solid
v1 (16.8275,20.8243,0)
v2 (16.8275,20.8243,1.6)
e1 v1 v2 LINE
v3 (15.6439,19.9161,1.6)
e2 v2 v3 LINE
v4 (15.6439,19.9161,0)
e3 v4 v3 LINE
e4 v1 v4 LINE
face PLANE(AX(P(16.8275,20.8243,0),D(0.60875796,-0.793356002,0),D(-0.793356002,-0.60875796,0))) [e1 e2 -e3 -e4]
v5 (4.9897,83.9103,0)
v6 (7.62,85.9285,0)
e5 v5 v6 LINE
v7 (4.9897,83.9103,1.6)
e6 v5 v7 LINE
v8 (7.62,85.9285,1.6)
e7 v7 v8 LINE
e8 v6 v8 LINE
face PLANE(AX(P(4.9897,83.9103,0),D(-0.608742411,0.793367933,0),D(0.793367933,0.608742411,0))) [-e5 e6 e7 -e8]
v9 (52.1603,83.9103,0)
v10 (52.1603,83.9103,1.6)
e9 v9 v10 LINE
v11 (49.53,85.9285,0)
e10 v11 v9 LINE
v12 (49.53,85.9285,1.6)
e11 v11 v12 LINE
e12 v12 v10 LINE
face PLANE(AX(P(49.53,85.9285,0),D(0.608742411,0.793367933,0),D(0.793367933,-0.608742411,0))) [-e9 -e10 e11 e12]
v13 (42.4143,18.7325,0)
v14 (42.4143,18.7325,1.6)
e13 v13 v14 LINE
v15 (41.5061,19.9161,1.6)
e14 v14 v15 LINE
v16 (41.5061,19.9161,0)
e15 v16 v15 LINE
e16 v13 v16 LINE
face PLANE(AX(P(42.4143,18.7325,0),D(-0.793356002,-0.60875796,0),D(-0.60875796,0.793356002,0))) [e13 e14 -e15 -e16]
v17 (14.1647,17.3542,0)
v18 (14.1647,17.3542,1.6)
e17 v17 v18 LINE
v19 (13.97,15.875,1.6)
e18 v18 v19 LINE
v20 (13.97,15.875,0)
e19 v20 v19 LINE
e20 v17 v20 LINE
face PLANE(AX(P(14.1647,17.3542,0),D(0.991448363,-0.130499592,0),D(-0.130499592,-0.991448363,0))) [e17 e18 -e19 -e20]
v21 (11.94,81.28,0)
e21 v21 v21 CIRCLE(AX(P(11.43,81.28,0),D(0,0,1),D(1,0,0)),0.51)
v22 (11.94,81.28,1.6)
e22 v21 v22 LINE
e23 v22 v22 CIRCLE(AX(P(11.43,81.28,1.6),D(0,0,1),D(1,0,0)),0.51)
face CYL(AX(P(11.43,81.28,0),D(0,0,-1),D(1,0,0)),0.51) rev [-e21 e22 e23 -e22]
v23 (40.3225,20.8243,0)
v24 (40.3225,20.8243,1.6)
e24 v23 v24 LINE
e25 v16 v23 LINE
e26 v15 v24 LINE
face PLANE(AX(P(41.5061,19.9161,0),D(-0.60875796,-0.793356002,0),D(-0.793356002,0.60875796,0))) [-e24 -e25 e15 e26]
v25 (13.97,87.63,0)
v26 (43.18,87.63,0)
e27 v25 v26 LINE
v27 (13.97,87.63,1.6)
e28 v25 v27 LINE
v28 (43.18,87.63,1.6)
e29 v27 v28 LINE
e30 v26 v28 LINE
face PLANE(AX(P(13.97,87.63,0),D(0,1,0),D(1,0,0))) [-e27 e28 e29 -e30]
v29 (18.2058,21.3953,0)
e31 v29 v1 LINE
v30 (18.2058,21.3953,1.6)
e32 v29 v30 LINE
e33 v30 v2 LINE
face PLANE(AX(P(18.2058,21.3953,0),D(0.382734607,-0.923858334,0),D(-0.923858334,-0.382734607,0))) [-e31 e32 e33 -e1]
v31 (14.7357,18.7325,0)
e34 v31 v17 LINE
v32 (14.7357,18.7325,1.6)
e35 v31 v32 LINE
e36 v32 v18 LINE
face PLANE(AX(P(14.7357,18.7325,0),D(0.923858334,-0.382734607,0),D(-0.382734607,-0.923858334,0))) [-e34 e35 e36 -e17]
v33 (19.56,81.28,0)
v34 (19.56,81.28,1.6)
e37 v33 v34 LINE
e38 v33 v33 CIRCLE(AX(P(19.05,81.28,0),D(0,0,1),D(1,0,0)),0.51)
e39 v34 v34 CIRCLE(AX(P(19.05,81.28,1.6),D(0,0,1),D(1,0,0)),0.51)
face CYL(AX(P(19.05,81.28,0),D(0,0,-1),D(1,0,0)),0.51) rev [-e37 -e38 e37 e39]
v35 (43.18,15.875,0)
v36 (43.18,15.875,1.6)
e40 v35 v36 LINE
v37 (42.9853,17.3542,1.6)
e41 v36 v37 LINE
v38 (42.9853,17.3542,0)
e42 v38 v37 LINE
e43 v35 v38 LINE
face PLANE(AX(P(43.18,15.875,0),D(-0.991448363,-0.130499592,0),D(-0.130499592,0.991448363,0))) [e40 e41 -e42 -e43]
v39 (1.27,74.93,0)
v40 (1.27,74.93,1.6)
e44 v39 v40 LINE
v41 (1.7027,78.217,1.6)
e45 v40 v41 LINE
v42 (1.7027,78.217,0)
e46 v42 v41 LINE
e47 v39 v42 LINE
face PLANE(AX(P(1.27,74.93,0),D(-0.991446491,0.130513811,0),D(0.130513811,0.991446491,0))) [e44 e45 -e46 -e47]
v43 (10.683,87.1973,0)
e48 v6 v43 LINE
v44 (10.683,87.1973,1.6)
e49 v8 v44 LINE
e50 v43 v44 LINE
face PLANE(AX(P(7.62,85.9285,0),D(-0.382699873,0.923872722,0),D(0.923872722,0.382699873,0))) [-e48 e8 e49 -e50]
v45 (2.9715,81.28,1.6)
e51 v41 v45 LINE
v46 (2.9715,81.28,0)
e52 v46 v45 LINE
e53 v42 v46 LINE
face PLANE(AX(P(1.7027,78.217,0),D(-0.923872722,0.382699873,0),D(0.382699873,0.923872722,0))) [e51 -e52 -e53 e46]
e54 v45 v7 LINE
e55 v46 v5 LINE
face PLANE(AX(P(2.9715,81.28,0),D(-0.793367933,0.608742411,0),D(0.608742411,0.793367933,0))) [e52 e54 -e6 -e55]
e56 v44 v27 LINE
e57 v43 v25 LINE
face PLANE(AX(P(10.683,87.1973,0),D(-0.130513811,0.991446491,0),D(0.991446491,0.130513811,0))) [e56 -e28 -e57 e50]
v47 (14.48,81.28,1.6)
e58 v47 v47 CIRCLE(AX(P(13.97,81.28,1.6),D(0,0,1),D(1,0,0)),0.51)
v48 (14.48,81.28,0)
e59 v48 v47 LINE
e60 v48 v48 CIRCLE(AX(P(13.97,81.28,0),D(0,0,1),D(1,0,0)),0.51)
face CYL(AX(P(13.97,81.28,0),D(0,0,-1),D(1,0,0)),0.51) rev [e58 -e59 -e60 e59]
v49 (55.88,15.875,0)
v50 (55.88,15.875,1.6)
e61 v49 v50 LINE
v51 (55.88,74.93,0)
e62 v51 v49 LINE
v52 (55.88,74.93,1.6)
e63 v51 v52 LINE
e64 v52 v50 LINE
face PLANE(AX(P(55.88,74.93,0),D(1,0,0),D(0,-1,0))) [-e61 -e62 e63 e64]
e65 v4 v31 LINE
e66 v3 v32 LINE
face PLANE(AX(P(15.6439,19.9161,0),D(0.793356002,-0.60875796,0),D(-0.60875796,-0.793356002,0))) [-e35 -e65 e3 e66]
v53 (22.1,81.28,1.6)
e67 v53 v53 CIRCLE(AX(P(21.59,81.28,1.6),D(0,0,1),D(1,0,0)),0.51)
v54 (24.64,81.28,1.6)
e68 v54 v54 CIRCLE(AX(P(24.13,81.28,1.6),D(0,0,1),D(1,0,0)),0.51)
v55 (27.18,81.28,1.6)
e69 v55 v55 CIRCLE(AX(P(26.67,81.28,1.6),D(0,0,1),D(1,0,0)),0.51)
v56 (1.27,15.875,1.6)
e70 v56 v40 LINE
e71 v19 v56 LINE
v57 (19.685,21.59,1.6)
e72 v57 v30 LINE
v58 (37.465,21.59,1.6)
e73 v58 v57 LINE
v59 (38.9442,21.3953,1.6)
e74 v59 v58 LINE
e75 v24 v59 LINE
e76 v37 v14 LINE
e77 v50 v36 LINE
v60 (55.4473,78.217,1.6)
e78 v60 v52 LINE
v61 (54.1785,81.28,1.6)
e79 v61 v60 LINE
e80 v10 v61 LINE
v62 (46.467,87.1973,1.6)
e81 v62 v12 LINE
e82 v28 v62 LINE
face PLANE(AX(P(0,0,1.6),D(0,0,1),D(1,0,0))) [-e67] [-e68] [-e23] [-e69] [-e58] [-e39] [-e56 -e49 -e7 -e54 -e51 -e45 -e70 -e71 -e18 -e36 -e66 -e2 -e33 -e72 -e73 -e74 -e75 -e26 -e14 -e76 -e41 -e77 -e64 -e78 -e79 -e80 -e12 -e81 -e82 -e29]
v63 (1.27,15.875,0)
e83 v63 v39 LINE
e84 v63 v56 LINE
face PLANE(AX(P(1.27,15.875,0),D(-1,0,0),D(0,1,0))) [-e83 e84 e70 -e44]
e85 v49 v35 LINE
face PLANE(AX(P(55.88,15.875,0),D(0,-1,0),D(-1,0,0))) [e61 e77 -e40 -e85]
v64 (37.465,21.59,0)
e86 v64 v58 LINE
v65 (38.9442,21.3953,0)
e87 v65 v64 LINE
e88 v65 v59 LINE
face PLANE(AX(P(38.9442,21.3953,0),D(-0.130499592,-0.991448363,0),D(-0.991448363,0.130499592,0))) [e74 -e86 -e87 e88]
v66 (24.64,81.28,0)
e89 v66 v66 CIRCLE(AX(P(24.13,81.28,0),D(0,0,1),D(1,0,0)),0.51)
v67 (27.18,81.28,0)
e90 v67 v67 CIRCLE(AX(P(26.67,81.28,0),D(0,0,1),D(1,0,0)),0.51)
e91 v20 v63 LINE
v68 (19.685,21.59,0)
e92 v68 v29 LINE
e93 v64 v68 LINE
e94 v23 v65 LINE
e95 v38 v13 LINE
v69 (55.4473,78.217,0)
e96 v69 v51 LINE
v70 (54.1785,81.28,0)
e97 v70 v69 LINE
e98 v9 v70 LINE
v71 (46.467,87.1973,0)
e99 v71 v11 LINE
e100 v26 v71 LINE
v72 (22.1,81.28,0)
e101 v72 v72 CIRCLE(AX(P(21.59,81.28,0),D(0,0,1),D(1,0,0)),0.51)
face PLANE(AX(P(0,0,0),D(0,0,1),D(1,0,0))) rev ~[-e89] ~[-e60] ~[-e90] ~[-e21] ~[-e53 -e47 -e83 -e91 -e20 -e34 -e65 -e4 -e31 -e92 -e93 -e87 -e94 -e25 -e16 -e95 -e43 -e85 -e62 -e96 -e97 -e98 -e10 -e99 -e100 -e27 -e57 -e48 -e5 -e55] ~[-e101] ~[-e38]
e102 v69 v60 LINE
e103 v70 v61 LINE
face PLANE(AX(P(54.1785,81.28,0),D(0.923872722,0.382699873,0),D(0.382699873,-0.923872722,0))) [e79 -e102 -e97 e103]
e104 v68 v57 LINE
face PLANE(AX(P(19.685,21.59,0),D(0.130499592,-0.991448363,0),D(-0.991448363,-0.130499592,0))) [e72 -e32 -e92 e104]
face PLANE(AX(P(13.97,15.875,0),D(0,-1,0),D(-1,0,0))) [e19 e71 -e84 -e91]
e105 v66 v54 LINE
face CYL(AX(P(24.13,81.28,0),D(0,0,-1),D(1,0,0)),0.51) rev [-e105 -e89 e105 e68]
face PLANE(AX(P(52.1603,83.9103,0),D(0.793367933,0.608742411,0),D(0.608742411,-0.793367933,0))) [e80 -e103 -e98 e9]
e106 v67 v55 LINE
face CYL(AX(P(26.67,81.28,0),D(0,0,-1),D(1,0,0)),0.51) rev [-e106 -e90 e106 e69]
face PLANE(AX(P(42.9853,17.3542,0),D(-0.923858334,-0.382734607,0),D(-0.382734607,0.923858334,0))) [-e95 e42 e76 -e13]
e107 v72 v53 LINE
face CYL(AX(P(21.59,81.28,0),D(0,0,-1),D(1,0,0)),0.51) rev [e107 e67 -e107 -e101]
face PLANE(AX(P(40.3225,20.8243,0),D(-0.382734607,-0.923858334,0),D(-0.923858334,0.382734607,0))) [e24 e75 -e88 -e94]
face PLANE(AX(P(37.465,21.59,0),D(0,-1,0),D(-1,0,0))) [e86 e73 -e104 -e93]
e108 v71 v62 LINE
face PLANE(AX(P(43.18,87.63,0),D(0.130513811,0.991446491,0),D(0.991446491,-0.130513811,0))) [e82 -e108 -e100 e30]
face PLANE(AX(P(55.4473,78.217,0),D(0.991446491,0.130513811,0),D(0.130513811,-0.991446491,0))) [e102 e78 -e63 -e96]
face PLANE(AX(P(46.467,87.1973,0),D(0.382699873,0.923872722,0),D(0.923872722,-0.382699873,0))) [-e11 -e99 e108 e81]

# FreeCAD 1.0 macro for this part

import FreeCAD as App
import Part
import Sketcher

V = App.Vector
Q = App.Units.Quantity


def add_polygon(sketch, points):
    """Adds a closed chain of lines whose ends are joined by coincident constraints."""
    first, n = sketch.GeometryCount, len(points)
    for a, b in zip(points, points[1:] + points[:1]):
        sketch.addGeometry(Part.LineSegment(App.Vector(*a, 0), App.Vector(*b, 0)), False)
    for i in range(n):
        sketch.addConstraint(Sketcher.Constraint("Coincident", first + i, 2, first + (i + 1) % n, 1))

doc = App.newDocument("Part")
body = doc.addObject("PartDesign::Body", "Body")

# Sketch on XY plane
sketch1 = body.newObject("Sketcher::SketchObject", "Sketch")
sketch1.AttachmentSupport = (doc.getObject("XY_Plane"), [""])
sketch1.MapMode = "FlatFace"
add_polygon(sketch1, [(55.88, 15.875), (55.88, 74.93), (55.4473, 78.217), (54.1785, 81.28), (52.1603, 83.9103), (49.53, 85.9285), (46.467, 87.1973), (43.18, 87.63), (13.97, 87.63), (10.683, 87.1973), (7.62, 85.9285), (4.9897, 83.9103), (2.9715, 81.28), (1.7027, 78.217), (1.27, 74.93), (1.27, 15.875), (13.97, 15.875), (14.1647, 17.3542), (14.7357, 18.7325), (15.6439, 19.9161), (16.8275, 20.8243), (18.2058, 21.3953), (19.685, 21.59), (37.465, 21.59), (38.9442, 21.3953), (40.3225, 20.8243), (41.5061, 19.9161), (42.4143, 18.7325), (42.9853, 17.3542), (43.18, 15.875)])  # lines 0-29
sketch1.addGeometry(Part.Circle(V(11.43, 81.28, 0), V(0, 0, 1), 0.51), False)  # 30
sketch1.addGeometry(Part.Circle(V(13.97, 81.28, 0), V(0, 0, 1), 0.51), False)  # 31
sketch1.addGeometry(Part.Circle(V(19.05, 81.28, 0), V(0, 0, 1), 0.51), False)  # 32
sketch1.addGeometry(Part.Circle(V(21.59, 81.28, 0), V(0, 0, 1), 0.51), False)  # 33
sketch1.addGeometry(Part.Circle(V(24.13, 81.28, 0), V(0, 0, 1), 0.51), False)  # 34
sketch1.addGeometry(Part.Circle(V(26.67, 81.28, 0), V(0, 0, 1), 0.51), False)  # 35
sketch1.addConstraint(Sketcher.Constraint("Vertical", 0))
sketch1.addConstraint(Sketcher.Constraint("Horizontal", 7))
sketch1.addConstraint(Sketcher.Constraint("Vertical", 14))
sketch1.addConstraint(Sketcher.Constraint("Horizontal", 15))
sketch1.addConstraint(Sketcher.Constraint("Horizontal", 22))
sketch1.addConstraint(Sketcher.Constraint("Horizontal", 29))
sketch1.addConstraint(Sketcher.Constraint("Equal", 30, 31))
sketch1.addConstraint(Sketcher.Constraint("Equal", 31, 32))
sketch1.addConstraint(Sketcher.Constraint("Equal", 32, 33))
sketch1.addConstraint(Sketcher.Constraint("Equal", 33, 34))
sketch1.addConstraint(Sketcher.Constraint("Equal", 34, 35))
sketch1.addConstraint(Sketcher.Constraint("Perpendicular", 1, 8))
sketch1.addConstraint(Sketcher.Constraint("Perpendicular", 2, 9))
sketch1.addConstraint(Sketcher.Constraint("Perpendicular", 3, 10))
sketch1.addConstraint(Sketcher.Constraint("Perpendicular", 4, 11))
sketch1.addConstraint(Sketcher.Constraint("Perpendicular", 5, 12))
sketch1.addConstraint(Sketcher.Constraint("Perpendicular", 6, 13))
sketch1.addConstraint(Sketcher.Constraint("Parallel", 13, 16))
sketch1.addConstraint(Sketcher.Constraint("Parallel", 12, 17))
sketch1.addConstraint(Sketcher.Constraint("Parallel", 11, 18))
sketch1.addConstraint(Sketcher.Constraint("Parallel", 10, 19))
sketch1.addConstraint(Sketcher.Constraint("Parallel", 9, 20))
sketch1.addConstraint(Sketcher.Constraint("Parallel", 8, 21))
sketch1.addConstraint(Sketcher.Constraint("Perpendicular", 16, 23))
sketch1.addConstraint(Sketcher.Constraint("Perpendicular", 17, 24))
sketch1.addConstraint(Sketcher.Constraint("Perpendicular", 18, 25))
sketch1.addConstraint(Sketcher.Constraint("Perpendicular", 19, 26))
sketch1.addConstraint(Sketcher.Constraint("Perpendicular", 20, 27))
sketch1.addConstraint(Sketcher.Constraint("Perpendicular", 21, 28))
sketch1.addConstraint(Sketcher.Constraint("Horizontal", 30, 3, 31, 3))
sketch1.addConstraint(Sketcher.Constraint("Horizontal", 31, 3, 32, 3))
sketch1.addConstraint(Sketcher.Constraint("Horizontal", 32, 3, 33, 3))
sketch1.addConstraint(Sketcher.Constraint("Horizontal", 33, 3, 34, 3))
sketch1.addConstraint(Sketcher.Constraint("Horizontal", 34, 3, 35, 3))
sketch1.addConstraint(Sketcher.Constraint("Horizontal", 35, 3, 2, 2))
sketch1.addConstraint(Sketcher.Constraint("Horizontal", 5, 2, 8, 2))
sketch1.addConstraint(Sketcher.Constraint("Horizontal", 4, 2, 9, 2))
sketch1.addConstraint(Sketcher.Constraint("Horizontal", 3, 2, 10, 2))
sketch1.addConstraint(Sketcher.Constraint("Horizontal", 2, 2, 11, 2))
sketch1.addConstraint(Sketcher.Constraint("Horizontal", 1, 2, 12, 2))
sketch1.addConstraint(Sketcher.Constraint("Horizontal", 0, 2, 13, 2))
sketch1.addConstraint(Sketcher.Constraint("Horizontal", 20, 2, 23, 2))
sketch1.addConstraint(Sketcher.Constraint("Horizontal", 19, 2, 24, 2))
sketch1.addConstraint(Sketcher.Constraint("Horizontal", 18, 2, 25, 2))
sketch1.addConstraint(Sketcher.Constraint("Horizontal", 17, 2, 26, 2))
sketch1.addConstraint(Sketcher.Constraint("Horizontal", 16, 2, 27, 2))
sketch1.addConstraint(Sketcher.Constraint("Horizontal", 15, 2, 28, 2))
sketch1.addConstraint(Sketcher.Constraint("Vertical", 31, 3, 7, 2))
sketch1.addConstraint(Sketcher.Constraint("Vertical", 7, 2, 15, 2))
sketch1.addConstraint(Sketcher.Constraint("Vertical", 6, 2, 28, 2))
sketch1.addConstraint(Sketcher.Constraint("Equal", 15, 29))
sketch1.addConstraint(Sketcher.Constraint("Equal", 1, 2))
sketch1.addConstraint(Sketcher.Constraint("Equal", 2, 3))
sketch1.addConstraint(Sketcher.Constraint("Equal", 3, 4))
sketch1.addConstraint(Sketcher.Constraint("Equal", 4, 5))
sketch1.addConstraint(Sketcher.Constraint("Equal", 5, 6))
sketch1.addConstraint(Sketcher.Constraint("Equal", 6, 8))
sketch1.addConstraint(Sketcher.Constraint("Equal", 8, 9))
sketch1.addConstraint(Sketcher.Constraint("Equal", 16, 17))
sketch1.addConstraint(Sketcher.Constraint("Equal", 17, 18))
sketch1.addConstraint(Sketcher.Constraint("Equal", 18, 19))
sketch1.addConstraint(Sketcher.Constraint("Equal", 19, 20))
sketch1.addConstraint(Sketcher.Constraint("Equal", 20, 21))
sketch1.addConstraint(Sketcher.Constraint("DistanceX", 15, 1, 15, 2, Q("0.5 in")))
sketch1.addConstraint(Sketcher.Constraint("DistanceX", 22, 1, 22, 2, Q("0.7 in")))
sketch1.addConstraint(Sketcher.Constraint("DistanceX", 7, 2, 7, 1, Q("1.15 in")))
sketch1.addConstraint(Sketcher.Constraint("DistanceY", -1, 1, 30, 3, Q("3.2 in")))
sketch1.addConstraint(Sketcher.Constraint("DistanceX", -1, 1, 0, 2, Q("2.2 in")))
sketch1.addConstraint(Sketcher.Constraint("DistanceX", -1, 1, 9, 2, Q("0.3 in")))
sketch1.addConstraint(Sketcher.Constraint("Angle", 1, Q("97.4993 deg")))
sketch1.addConstraint(Sketcher.Constraint("Angle", 2, Q("112.501 deg")))
sketch1.addConstraint(Sketcher.Constraint("DistanceX", 30, 3, 31, 3, Q("0.1 in")))
sketch1.addConstraint(Sketcher.Constraint("DistanceX", 31, 3, 32, 3, Q("0.2 in")))
sketch1.addConstraint(Sketcher.Constraint("DistanceX", 32, 3, 33, 3, Q("0.1 in")))
sketch1.addConstraint(Sketcher.Constraint("DistanceX", 33, 3, 34, 3, Q("0.1 in")))
sketch1.addConstraint(Sketcher.Constraint("DistanceX", 34, 3, 35, 3, Q("0.1 in")))
sketch1.addConstraint(Sketcher.Constraint("Diameter", 30, Q("1.02 mm")))
sketch1.addConstraint(Sketcher.Constraint("DistanceY", 0, 1, 0, 2, Q("2.325 in")))
pad1 = body.newObject("PartDesign::Pad", "Pad")
pad1.Profile = sketch1
pad1.Length = Q("0.0629921 in")

doc.recompute()
